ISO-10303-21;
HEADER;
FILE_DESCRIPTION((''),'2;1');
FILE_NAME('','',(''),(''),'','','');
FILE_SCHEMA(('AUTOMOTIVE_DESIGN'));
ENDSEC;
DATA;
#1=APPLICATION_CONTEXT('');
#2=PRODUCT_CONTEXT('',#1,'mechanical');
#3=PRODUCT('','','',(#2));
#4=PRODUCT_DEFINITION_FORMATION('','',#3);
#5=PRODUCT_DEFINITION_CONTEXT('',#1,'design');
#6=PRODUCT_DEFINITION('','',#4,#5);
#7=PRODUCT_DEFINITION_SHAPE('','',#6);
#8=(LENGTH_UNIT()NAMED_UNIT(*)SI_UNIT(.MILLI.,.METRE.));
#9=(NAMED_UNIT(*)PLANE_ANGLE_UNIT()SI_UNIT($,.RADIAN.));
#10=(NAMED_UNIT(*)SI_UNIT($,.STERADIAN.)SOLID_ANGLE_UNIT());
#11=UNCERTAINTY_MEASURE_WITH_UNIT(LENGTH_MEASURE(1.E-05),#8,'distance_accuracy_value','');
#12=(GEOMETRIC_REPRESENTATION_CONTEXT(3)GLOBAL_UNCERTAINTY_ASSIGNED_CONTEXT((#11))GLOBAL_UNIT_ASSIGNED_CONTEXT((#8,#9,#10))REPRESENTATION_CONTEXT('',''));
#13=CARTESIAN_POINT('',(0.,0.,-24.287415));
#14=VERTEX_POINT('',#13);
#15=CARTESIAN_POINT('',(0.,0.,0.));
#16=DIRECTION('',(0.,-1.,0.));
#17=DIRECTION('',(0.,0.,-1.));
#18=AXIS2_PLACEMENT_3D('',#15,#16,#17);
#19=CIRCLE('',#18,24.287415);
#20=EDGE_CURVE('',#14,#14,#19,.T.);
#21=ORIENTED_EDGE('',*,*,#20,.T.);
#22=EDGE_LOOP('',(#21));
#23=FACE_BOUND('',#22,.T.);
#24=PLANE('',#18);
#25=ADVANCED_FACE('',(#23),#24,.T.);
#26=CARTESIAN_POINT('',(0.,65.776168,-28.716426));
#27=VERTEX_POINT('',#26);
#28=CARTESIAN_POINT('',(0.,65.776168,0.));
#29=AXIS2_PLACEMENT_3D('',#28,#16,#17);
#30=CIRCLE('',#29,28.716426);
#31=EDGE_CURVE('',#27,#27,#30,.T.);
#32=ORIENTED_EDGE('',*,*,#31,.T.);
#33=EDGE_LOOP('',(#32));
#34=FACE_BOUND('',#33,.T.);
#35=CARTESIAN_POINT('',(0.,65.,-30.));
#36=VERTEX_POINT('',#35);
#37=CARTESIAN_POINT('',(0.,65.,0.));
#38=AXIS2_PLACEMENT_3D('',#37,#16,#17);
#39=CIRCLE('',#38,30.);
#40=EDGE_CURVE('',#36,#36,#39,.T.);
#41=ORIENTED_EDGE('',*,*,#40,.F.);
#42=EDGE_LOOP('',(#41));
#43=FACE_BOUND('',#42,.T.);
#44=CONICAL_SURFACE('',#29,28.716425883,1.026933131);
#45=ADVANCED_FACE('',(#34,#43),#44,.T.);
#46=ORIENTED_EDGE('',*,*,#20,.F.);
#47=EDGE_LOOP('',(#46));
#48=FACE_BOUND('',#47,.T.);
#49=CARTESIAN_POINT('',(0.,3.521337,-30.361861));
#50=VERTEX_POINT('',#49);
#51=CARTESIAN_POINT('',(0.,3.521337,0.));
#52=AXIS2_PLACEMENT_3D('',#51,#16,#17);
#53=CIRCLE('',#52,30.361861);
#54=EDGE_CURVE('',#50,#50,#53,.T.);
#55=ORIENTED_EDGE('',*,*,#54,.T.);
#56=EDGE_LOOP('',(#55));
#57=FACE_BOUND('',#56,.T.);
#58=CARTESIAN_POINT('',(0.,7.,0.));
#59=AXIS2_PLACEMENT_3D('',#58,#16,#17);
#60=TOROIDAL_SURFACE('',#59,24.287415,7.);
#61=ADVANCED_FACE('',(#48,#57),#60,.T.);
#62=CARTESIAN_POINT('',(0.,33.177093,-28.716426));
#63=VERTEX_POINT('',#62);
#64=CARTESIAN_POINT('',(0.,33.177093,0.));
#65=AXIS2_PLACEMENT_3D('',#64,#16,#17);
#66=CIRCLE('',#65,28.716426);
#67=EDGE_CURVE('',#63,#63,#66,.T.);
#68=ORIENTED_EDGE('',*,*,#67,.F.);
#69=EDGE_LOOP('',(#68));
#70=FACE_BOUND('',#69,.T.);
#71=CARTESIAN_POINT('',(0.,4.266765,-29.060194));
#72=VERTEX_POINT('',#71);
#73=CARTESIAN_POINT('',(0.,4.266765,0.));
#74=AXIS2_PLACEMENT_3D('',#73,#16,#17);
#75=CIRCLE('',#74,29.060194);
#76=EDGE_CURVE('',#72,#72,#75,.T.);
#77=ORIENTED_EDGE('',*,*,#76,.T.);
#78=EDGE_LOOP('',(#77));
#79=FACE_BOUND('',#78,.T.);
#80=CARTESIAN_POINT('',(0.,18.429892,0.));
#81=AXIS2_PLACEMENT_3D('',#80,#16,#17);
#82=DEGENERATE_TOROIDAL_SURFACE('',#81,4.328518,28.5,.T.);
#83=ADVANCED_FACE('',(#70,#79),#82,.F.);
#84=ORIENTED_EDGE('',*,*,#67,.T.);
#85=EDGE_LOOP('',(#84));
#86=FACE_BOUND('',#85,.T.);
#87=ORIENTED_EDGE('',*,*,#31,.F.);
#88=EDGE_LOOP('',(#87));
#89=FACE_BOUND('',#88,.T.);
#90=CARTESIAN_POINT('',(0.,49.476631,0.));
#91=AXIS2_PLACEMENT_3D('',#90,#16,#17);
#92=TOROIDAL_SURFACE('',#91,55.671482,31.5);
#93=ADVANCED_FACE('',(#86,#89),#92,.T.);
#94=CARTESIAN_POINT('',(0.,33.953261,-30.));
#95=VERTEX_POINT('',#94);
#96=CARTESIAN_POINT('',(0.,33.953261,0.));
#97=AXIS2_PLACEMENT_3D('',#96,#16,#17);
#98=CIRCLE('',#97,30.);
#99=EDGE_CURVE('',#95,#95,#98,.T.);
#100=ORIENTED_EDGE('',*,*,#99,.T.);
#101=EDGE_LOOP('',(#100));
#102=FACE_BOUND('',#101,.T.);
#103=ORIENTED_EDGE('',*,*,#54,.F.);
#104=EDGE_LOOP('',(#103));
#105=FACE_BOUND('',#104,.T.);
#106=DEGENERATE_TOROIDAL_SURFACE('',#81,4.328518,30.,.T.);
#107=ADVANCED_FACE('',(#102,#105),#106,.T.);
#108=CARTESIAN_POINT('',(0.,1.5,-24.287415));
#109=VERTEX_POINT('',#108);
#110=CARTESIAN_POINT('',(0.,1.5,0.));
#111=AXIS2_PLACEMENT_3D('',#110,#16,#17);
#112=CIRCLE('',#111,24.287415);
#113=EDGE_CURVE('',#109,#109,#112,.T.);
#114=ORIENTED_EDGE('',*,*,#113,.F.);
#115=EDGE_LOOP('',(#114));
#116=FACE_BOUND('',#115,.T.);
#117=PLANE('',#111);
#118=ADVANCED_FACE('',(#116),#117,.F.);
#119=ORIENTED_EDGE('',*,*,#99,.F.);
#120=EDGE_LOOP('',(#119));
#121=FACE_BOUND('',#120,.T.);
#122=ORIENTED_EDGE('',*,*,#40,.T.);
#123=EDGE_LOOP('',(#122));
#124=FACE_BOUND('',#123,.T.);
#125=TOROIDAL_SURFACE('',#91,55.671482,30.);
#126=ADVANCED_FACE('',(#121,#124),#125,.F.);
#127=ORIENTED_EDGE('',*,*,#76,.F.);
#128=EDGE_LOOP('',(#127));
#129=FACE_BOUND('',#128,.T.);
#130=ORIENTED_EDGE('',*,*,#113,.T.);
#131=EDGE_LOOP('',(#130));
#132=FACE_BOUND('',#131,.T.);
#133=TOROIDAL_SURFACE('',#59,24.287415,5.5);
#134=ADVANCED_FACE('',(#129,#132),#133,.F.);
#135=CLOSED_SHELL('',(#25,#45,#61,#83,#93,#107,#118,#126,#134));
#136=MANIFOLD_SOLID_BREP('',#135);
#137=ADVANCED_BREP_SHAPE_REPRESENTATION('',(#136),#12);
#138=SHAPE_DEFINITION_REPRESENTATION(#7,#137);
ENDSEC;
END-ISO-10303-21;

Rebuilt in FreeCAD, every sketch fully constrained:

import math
import FreeCAD as App
import Part
import Sketcher

doc = App.newDocument("Part")
body = doc.addObject("PartDesign::Body", "Body")

sketch1 = body.newObject("Sketcher::SketchObject", "Sketch")
sketch1.AttachmentSupport = (doc.getObject("XY_Plane"), [""])
sketch1.MapMode = "FlatFace"
sketch1.addGeometry([
    Part.LineSegment(App.Vector(0, 0, 0), App.Vector(24.287415, 0, 0)),
    Part.ArcOfCircle(Part.Circle(App.Vector(24.287415, 7, 0), App.Vector(0, 0, 1), 7), math.radians(-90), math.radians(-29.798539)),
    Part.ArcOfCircle(Part.Circle(App.Vector(4.328518, 18.429892, 0), App.Vector(0, 0, 1), 30), math.radians(-29.798539), math.radians(31.161066)),
    Part.ArcOfCircle(Part.Circle(App.Vector(55.671482, 49.476631, 0), App.Vector(0, 0, 1), 30), math.radians(148.838934), math.radians(211.161066)),
    Part.LineSegment(App.Vector(30, 65, 0), App.Vector(28.716426, 65.776168, 0)),
    Part.ArcOfCircle(Part.Circle(App.Vector(55.671482, 49.476631, 0), App.Vector(0, 0, 1), 31.5), math.radians(148.838934), math.radians(211.161066)),
    Part.ArcOfCircle(Part.Circle(App.Vector(4.328518, 18.429892, 0), App.Vector(0, 0, 1), 28.5), math.radians(-29.798539), math.radians(31.161066)),
    Part.ArcOfCircle(Part.Circle(App.Vector(24.287415, 7, 0), App.Vector(0, 0, 1), 5.5), math.radians(-90), math.radians(-29.798539)),
    Part.LineSegment(App.Vector(24.287415, 1.5, 0), App.Vector(0, 1.5, 0)),
    Part.LineSegment(App.Vector(0, 1.5, 0), App.Vector(0, 0, 0)),
], False)
sketch1.addConstraint([
    Sketcher.Constraint("Tangent", 0, 2, 1, 1),
    Sketcher.Constraint("Tangent", 1, 2, 2, 1),
    Sketcher.Constraint("Tangent", 2, 2, 3, 2),
    Sketcher.Constraint("Coincident", 3, 1, 4, 1),
    Sketcher.Constraint("Coincident", 4, 2, 5, 1),
    Sketcher.Constraint("Tangent", 5, 2, 6, 2),
    Sketcher.Constraint("Tangent", 6, 1, 7, 2),
    Sketcher.Constraint("Tangent", 7, 1, 8, 1),
    Sketcher.Constraint("Coincident", 8, 2, 9, 1),
    Sketcher.Constraint("Coincident", 9, 2, 0, 1),
    Sketcher.Constraint("Horizontal", 0),
    Sketcher.Constraint("Horizontal", 8),
    Sketcher.Constraint("Vertical", 9),
    Sketcher.Constraint("Coincident", 9, 2, -1, 1),
    Sketcher.Constraint("Coincident", 5, 3, 3, 3),
    Sketcher.Constraint("Coincident", 6, 3, 2, 3),
    Sketcher.Constraint("Coincident", 7, 3, 1, 3),
    Sketcher.Constraint("Equal", 2, 3),
    Sketcher.Constraint("Vertical", 2, 2, 3, 1),
    Sketcher.Constraint("Vertical", 4, 2, 5, 2),
    Sketcher.Constraint("Radius", 1, 7.0),
    Sketcher.Constraint("Radius", 2, 30.0),
    Sketcher.Constraint("Radius", 5, 31.5),
    Sketcher.Constraint("DistanceX", -1, 1, 2, 2, 30.0),
    Sketcher.Constraint("DistanceY", -1, 1, 3, 1, 65.0),
    Sketcher.Constraint("DistanceY", 2, 3, 5, 2, 14.747201),
])
revolution = body.newObject("PartDesign::Revolution", "Revolution")
revolution.Profile = sketch1
revolution.ReferenceAxis = (sketch1, ["V_Axis"])
revolution.Angle = 360

doc.recompute()
